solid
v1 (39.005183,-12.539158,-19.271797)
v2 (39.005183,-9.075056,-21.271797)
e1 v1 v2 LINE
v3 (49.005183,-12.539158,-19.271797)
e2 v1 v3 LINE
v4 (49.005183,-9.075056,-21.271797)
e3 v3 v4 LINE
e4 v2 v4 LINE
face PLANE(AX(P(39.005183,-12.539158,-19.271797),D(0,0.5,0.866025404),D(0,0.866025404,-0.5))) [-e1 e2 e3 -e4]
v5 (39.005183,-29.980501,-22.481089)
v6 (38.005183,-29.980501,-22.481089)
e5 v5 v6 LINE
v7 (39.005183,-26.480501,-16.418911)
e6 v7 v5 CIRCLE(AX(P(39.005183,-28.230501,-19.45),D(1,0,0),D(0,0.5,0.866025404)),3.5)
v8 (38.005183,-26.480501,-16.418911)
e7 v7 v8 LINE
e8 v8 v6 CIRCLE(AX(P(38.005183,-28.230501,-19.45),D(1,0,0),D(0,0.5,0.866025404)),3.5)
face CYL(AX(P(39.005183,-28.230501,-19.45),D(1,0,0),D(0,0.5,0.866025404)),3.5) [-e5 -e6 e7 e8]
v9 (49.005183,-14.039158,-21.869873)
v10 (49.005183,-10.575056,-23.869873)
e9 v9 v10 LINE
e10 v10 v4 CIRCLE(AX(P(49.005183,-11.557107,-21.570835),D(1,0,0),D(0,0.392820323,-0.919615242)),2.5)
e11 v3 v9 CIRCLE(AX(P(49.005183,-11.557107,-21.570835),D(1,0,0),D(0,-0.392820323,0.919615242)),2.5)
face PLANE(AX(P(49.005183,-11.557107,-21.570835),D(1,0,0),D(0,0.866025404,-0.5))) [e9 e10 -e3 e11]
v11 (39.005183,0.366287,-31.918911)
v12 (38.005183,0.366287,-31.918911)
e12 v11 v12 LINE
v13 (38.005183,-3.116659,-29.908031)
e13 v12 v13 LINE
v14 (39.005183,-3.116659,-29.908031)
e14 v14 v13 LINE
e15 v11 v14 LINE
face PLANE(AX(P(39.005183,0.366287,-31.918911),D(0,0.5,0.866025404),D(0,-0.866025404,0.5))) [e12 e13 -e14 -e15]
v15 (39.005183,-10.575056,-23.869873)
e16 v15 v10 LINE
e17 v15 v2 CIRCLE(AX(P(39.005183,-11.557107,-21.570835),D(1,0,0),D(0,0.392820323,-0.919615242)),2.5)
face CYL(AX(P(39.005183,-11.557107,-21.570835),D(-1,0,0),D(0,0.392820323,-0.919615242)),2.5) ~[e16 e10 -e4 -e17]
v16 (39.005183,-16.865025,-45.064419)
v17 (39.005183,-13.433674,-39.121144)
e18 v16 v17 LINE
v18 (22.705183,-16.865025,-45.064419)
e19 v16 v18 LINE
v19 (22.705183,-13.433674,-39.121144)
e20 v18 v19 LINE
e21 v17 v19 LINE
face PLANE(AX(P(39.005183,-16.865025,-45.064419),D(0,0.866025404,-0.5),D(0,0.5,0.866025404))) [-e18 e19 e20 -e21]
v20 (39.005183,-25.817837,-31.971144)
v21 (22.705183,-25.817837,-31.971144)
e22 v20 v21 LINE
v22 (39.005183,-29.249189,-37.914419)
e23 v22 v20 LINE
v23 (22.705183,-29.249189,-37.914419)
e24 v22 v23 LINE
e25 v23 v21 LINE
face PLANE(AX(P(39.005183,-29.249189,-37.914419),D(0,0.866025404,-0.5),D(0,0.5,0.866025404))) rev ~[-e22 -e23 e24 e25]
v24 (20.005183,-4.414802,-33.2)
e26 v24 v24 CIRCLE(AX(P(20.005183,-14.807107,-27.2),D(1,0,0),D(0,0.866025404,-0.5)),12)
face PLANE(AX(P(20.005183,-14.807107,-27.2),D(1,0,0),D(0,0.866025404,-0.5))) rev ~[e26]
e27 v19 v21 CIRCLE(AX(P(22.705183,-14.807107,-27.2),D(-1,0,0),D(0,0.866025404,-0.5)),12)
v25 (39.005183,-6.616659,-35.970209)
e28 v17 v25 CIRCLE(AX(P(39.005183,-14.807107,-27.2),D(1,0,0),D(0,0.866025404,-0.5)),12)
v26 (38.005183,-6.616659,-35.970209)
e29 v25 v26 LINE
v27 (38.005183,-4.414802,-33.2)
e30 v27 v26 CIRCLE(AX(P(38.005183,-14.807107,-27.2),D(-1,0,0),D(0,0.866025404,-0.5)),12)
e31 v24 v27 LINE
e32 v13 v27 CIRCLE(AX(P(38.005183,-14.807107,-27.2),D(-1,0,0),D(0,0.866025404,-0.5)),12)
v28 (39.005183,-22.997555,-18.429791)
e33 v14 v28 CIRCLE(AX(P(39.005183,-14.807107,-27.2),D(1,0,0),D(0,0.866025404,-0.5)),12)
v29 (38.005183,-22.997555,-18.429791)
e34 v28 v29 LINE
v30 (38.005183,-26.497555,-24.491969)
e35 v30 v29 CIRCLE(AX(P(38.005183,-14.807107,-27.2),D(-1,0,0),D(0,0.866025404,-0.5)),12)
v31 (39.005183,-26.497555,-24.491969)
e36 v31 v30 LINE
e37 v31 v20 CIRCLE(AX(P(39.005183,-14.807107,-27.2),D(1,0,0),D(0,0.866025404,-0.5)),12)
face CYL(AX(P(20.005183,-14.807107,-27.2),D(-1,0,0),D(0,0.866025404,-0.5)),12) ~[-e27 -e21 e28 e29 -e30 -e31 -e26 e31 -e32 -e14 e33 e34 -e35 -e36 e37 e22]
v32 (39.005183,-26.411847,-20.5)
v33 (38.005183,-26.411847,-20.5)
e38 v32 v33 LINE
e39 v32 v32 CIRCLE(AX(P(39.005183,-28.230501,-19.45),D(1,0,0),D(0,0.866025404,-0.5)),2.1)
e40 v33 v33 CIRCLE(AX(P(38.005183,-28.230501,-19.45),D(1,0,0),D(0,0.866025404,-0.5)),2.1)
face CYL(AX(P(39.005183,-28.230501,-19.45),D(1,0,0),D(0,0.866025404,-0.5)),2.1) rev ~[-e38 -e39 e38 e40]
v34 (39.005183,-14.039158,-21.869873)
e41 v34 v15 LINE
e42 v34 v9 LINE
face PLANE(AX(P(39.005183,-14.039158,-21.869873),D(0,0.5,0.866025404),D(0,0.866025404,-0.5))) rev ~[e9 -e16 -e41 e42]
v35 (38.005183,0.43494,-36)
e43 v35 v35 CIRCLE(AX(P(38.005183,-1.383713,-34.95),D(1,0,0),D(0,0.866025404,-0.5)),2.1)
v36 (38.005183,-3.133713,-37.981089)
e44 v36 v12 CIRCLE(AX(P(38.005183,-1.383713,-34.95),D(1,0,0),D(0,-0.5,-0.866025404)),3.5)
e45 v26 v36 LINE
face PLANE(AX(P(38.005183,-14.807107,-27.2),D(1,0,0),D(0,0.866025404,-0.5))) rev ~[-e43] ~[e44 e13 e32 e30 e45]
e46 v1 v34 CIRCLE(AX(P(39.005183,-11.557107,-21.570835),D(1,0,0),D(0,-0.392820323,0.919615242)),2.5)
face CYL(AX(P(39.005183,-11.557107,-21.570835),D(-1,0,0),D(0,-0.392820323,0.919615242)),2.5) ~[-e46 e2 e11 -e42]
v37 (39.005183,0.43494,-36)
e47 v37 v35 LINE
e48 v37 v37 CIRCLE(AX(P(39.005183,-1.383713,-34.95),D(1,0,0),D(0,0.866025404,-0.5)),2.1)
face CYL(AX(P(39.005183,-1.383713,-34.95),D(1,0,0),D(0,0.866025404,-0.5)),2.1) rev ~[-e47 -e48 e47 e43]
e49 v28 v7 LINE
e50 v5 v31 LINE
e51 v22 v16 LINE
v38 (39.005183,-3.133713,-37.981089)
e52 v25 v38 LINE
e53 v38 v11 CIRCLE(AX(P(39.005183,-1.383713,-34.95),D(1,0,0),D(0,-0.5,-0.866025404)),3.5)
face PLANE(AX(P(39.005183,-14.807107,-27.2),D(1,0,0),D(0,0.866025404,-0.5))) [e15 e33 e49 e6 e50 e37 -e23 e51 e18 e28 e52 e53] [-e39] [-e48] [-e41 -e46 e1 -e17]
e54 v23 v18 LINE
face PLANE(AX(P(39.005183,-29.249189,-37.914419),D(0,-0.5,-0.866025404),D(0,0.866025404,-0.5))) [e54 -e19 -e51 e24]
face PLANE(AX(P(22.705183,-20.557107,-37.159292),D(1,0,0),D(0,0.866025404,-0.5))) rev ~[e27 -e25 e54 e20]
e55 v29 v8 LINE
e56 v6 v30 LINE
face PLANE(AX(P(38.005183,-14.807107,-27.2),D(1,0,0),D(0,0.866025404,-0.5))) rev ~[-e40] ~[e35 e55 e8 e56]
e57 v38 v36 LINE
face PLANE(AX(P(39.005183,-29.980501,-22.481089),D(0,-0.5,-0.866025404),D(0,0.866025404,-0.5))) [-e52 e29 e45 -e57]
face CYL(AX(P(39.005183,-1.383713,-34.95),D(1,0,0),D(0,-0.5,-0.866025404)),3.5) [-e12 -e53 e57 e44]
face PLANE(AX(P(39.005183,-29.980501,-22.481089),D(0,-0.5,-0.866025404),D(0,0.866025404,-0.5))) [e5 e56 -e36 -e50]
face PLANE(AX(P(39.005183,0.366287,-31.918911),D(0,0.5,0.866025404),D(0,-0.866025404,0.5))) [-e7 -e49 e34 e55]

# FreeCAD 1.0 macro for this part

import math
import FreeCAD as App
import Part
import Sketcher

V = App.Vector


def add_polygon(sketch, points):
    """Adds a closed chain of lines whose ends are joined by coincident constraints."""
    first, n = sketch.GeometryCount, len(points)
    for a, b in zip(points, points[1:] + points[:1]):
        sketch.addGeometry(Part.LineSegment(App.Vector(*a, 0), App.Vector(*b, 0)), False)
    for i in range(n):
        sketch.addConstraint(Sketcher.Constraint("Coincident", first + i, 2, first + (i + 1) % n, 1))

doc = App.newDocument("Part")
body = doc.addObject("PartDesign::Body", "Body")

# Sketch on XY plane
sketch1 = body.newObject("Sketcher::SketchObject", "Sketch")
sketch1.AttachmentSupport = (doc.getObject("XY_Plane"), [""])
sketch1.MapMode = "FlatFace"
sketch1.addGeometry(Part.Circle(V(0, 0, 0), V(0, 0, 1), 12), False)
sketch1.addConstraint([
    Sketcher.Constraint("Coincident", 0, 3, -1, 1),
    Sketcher.Constraint("Diameter", 0, 24.0),
])
pad1 = body.newObject("PartDesign::Pad", "Pad")
pad1.Profile = sketch1
pad1.Length = 19

# Sketch on XY plane
sketch2 = body.newObject("Sketcher::SketchObject", "Sketch001")
sketch2.AttachmentSupport = (doc.getObject("XY_Plane"), [""])
sketch2.MapMode = "FlatFace"
sketch2.AttachmentOffset = App.Placement(V(0, 0, 19), App.Rotation())
add_polygon(sketch2, [(-7.15, -6.5), (-7.15, -16.5), (7.15, -16.5), (7.15, -6.5)])  # lines 0-3
sketch2.addConstraint([
    Sketcher.Constraint("Vertical", 0),
    Sketcher.Constraint("Horizontal", 1),
    Sketcher.Constraint("Vertical", 2),
    Sketcher.Constraint("Horizontal", 3),
    Sketcher.Constraint("DistanceY", 0, 2, 0, 1, 10.0),
    Sketcher.Constraint("DistanceX", 1, 1, 1, 2, 14.3),
    Sketcher.Constraint("DistanceY", 0, 2, -1, 1, 16.5),
    Sketcher.Constraint("DistanceX", 0, 2, -1, 1, 7.15),
])
pad2 = body.newObject("PartDesign::Pad", "Pad001")
pad2.Profile = sketch2
pad2.Length = 16.3
pad2.Reversed = True

# Sketch on XY plane
sketch3 = body.newObject("Sketcher::SketchObject", "Sketch002")
sketch3.AttachmentSupport = (doc.getObject("XY_Plane"), [""])
sketch3.MapMode = "FlatFace"
sketch3.AttachmentOffset = App.Placement(V(0, 0, 19), App.Rotation())
sketch3.addGeometry([
    Part.ArcOfCircle(Part.Circle(V(15.5, 0, 0), V(0, 0, 1), 3.5), math.radians(-90), math.radians(90)),  # 0
    Part.LineSegment(V(15.5, 3.5, 0), V(-15.5, 3.5, 0)),  # 1
    Part.ArcOfCircle(Part.Circle(V(-15.5, 0, 0), V(0, 0, 1), 3.5), math.radians(90), math.radians(270)),  # 2
    Part.LineSegment(V(-15.5, -3.5, 0), V(15.5, -3.5, 0)),  # 3
    Part.Circle(V(-15.5, 0, 0), V(0, 0, 1), 2.1),  # 4
    Part.Circle(V(15.5, 0, 0), V(0, 0, 1), 2.1),  # 5
], False)
sketch3.addConstraint([
    Sketcher.Constraint("Tangent", 0, 2, 1, 1),
    Sketcher.Constraint("Tangent", 1, 2, 2, 1),
    Sketcher.Constraint("Tangent", 2, 2, 3, 1),
    Sketcher.Constraint("Tangent", 3, 2, 0, 1),
    Sketcher.Constraint("Horizontal", 1),
    Sketcher.Constraint("Horizontal", 3),
    Sketcher.Constraint("Coincident", 4, 3, 2, 3),
    Sketcher.Constraint("Coincident", 5, 3, 0, 3),
    Sketcher.Constraint("Equal", 4, 5),
    Sketcher.Constraint("Symmetric", 0, 3, 2, 3, -1, 1),
    Sketcher.Constraint("Diameter", 4, 4.2),
    Sketcher.Constraint("Radius", 0, 3.5),
    Sketcher.Constraint("DistanceX", 1, 2, 1, 1, 31.0),
])
pad3 = body.newObject("PartDesign::Pad", "Pad002")
pad3.Profile = sketch3
pad3.Length = 1
pad3.Reversed = True

# Sketch on XY plane
sketch4 = body.newObject("Sketcher::SketchObject", "Sketch003")
sketch4.AttachmentSupport = (doc.getObject("XY_Plane"), [""])
sketch4.MapMode = "FlatFace"
sketch4.AttachmentOffset = App.Placement(V(0, 0, 19), App.Rotation())
sketch4.addGeometry([
    Part.ArcOfCircle(Part.Circle(V(0, 6.5, 0), V(0, 0, 1), 2.5), math.radians(143.130102), math.radians(216.869898)),
    Part.LineSegment(V(-2, 5, 0), V(2, 5, 0)),
    Part.ArcOfCircle(Part.Circle(V(0, 6.5, 0), V(0, 0, 1), 2.5), math.radians(-36.869898), math.radians(36.869898)),
    Part.LineSegment(V(2, 8, 0), V(-2, 8, 0)),
], False)
sketch4.addConstraint([
    Sketcher.Constraint("Coincident", 0, 2, 1, 1),
    Sketcher.Constraint("Coincident", 1, 2, 2, 1),
    Sketcher.Constraint("Coincident", 2, 2, 3, 1),
    Sketcher.Constraint("Coincident", 3, 2, 0, 1),
    Sketcher.Constraint("Horizontal", 1),
    Sketcher.Constraint("Horizontal", 3),
    Sketcher.Constraint("Coincident", 2, 3, 0, 3),
    Sketcher.Constraint("Equal", 0, 2),
    Sketcher.Constraint("PointOnObject", 0, 3, -2),
    Sketcher.Constraint("Vertical", 1, 2, 2, 2),
    Sketcher.Constraint("Radius", 0, 2.5),
    Sketcher.Constraint("DistanceX", 1, 1, 1, 2, 4.0),
    Sketcher.Constraint("DistanceY", -1, 1, 0, 2, 5.0),
])
pad4 = body.newObject("PartDesign::Pad", "Pad003")
pad4.Profile = sketch4
pad4.Length = 10
body2 = doc.addObject("PartDesign::Body", "Body001")
doc.recompute()

body.Placement = App.Placement(V(0, 0, 0), App.Rotation(V(1, 0, 0), 90))
boolean = body2.newObject("PartDesign::Boolean", "Boolean")
boolean.Type = "Fuse"
boolean.addObjects([body])
body3 = doc.addObject("PartDesign::Body", "Body002")
doc.recompute()

body2.Placement = App.Placement(V(0, 0, 0), App.Rotation(V(0, 1, 0), 30))
boolean2 = body3.newObject("PartDesign::Boolean", "Boolean001")
boolean2.Type = "Fuse"
boolean2.addObjects([body2])
body4 = doc.addObject("PartDesign::Body", "Body003")
doc.recompute()

body3.Placement = App.Placement(V(20.005183, -14.807107, -27.2), App.Rotation(V(0, 0, 1), 90))
boolean3 = body4.newObject("PartDesign::Boolean", "Boolean002")
boolean3.Type = "Fuse"
boolean3.addObjects([body3])

doc.recompute()
